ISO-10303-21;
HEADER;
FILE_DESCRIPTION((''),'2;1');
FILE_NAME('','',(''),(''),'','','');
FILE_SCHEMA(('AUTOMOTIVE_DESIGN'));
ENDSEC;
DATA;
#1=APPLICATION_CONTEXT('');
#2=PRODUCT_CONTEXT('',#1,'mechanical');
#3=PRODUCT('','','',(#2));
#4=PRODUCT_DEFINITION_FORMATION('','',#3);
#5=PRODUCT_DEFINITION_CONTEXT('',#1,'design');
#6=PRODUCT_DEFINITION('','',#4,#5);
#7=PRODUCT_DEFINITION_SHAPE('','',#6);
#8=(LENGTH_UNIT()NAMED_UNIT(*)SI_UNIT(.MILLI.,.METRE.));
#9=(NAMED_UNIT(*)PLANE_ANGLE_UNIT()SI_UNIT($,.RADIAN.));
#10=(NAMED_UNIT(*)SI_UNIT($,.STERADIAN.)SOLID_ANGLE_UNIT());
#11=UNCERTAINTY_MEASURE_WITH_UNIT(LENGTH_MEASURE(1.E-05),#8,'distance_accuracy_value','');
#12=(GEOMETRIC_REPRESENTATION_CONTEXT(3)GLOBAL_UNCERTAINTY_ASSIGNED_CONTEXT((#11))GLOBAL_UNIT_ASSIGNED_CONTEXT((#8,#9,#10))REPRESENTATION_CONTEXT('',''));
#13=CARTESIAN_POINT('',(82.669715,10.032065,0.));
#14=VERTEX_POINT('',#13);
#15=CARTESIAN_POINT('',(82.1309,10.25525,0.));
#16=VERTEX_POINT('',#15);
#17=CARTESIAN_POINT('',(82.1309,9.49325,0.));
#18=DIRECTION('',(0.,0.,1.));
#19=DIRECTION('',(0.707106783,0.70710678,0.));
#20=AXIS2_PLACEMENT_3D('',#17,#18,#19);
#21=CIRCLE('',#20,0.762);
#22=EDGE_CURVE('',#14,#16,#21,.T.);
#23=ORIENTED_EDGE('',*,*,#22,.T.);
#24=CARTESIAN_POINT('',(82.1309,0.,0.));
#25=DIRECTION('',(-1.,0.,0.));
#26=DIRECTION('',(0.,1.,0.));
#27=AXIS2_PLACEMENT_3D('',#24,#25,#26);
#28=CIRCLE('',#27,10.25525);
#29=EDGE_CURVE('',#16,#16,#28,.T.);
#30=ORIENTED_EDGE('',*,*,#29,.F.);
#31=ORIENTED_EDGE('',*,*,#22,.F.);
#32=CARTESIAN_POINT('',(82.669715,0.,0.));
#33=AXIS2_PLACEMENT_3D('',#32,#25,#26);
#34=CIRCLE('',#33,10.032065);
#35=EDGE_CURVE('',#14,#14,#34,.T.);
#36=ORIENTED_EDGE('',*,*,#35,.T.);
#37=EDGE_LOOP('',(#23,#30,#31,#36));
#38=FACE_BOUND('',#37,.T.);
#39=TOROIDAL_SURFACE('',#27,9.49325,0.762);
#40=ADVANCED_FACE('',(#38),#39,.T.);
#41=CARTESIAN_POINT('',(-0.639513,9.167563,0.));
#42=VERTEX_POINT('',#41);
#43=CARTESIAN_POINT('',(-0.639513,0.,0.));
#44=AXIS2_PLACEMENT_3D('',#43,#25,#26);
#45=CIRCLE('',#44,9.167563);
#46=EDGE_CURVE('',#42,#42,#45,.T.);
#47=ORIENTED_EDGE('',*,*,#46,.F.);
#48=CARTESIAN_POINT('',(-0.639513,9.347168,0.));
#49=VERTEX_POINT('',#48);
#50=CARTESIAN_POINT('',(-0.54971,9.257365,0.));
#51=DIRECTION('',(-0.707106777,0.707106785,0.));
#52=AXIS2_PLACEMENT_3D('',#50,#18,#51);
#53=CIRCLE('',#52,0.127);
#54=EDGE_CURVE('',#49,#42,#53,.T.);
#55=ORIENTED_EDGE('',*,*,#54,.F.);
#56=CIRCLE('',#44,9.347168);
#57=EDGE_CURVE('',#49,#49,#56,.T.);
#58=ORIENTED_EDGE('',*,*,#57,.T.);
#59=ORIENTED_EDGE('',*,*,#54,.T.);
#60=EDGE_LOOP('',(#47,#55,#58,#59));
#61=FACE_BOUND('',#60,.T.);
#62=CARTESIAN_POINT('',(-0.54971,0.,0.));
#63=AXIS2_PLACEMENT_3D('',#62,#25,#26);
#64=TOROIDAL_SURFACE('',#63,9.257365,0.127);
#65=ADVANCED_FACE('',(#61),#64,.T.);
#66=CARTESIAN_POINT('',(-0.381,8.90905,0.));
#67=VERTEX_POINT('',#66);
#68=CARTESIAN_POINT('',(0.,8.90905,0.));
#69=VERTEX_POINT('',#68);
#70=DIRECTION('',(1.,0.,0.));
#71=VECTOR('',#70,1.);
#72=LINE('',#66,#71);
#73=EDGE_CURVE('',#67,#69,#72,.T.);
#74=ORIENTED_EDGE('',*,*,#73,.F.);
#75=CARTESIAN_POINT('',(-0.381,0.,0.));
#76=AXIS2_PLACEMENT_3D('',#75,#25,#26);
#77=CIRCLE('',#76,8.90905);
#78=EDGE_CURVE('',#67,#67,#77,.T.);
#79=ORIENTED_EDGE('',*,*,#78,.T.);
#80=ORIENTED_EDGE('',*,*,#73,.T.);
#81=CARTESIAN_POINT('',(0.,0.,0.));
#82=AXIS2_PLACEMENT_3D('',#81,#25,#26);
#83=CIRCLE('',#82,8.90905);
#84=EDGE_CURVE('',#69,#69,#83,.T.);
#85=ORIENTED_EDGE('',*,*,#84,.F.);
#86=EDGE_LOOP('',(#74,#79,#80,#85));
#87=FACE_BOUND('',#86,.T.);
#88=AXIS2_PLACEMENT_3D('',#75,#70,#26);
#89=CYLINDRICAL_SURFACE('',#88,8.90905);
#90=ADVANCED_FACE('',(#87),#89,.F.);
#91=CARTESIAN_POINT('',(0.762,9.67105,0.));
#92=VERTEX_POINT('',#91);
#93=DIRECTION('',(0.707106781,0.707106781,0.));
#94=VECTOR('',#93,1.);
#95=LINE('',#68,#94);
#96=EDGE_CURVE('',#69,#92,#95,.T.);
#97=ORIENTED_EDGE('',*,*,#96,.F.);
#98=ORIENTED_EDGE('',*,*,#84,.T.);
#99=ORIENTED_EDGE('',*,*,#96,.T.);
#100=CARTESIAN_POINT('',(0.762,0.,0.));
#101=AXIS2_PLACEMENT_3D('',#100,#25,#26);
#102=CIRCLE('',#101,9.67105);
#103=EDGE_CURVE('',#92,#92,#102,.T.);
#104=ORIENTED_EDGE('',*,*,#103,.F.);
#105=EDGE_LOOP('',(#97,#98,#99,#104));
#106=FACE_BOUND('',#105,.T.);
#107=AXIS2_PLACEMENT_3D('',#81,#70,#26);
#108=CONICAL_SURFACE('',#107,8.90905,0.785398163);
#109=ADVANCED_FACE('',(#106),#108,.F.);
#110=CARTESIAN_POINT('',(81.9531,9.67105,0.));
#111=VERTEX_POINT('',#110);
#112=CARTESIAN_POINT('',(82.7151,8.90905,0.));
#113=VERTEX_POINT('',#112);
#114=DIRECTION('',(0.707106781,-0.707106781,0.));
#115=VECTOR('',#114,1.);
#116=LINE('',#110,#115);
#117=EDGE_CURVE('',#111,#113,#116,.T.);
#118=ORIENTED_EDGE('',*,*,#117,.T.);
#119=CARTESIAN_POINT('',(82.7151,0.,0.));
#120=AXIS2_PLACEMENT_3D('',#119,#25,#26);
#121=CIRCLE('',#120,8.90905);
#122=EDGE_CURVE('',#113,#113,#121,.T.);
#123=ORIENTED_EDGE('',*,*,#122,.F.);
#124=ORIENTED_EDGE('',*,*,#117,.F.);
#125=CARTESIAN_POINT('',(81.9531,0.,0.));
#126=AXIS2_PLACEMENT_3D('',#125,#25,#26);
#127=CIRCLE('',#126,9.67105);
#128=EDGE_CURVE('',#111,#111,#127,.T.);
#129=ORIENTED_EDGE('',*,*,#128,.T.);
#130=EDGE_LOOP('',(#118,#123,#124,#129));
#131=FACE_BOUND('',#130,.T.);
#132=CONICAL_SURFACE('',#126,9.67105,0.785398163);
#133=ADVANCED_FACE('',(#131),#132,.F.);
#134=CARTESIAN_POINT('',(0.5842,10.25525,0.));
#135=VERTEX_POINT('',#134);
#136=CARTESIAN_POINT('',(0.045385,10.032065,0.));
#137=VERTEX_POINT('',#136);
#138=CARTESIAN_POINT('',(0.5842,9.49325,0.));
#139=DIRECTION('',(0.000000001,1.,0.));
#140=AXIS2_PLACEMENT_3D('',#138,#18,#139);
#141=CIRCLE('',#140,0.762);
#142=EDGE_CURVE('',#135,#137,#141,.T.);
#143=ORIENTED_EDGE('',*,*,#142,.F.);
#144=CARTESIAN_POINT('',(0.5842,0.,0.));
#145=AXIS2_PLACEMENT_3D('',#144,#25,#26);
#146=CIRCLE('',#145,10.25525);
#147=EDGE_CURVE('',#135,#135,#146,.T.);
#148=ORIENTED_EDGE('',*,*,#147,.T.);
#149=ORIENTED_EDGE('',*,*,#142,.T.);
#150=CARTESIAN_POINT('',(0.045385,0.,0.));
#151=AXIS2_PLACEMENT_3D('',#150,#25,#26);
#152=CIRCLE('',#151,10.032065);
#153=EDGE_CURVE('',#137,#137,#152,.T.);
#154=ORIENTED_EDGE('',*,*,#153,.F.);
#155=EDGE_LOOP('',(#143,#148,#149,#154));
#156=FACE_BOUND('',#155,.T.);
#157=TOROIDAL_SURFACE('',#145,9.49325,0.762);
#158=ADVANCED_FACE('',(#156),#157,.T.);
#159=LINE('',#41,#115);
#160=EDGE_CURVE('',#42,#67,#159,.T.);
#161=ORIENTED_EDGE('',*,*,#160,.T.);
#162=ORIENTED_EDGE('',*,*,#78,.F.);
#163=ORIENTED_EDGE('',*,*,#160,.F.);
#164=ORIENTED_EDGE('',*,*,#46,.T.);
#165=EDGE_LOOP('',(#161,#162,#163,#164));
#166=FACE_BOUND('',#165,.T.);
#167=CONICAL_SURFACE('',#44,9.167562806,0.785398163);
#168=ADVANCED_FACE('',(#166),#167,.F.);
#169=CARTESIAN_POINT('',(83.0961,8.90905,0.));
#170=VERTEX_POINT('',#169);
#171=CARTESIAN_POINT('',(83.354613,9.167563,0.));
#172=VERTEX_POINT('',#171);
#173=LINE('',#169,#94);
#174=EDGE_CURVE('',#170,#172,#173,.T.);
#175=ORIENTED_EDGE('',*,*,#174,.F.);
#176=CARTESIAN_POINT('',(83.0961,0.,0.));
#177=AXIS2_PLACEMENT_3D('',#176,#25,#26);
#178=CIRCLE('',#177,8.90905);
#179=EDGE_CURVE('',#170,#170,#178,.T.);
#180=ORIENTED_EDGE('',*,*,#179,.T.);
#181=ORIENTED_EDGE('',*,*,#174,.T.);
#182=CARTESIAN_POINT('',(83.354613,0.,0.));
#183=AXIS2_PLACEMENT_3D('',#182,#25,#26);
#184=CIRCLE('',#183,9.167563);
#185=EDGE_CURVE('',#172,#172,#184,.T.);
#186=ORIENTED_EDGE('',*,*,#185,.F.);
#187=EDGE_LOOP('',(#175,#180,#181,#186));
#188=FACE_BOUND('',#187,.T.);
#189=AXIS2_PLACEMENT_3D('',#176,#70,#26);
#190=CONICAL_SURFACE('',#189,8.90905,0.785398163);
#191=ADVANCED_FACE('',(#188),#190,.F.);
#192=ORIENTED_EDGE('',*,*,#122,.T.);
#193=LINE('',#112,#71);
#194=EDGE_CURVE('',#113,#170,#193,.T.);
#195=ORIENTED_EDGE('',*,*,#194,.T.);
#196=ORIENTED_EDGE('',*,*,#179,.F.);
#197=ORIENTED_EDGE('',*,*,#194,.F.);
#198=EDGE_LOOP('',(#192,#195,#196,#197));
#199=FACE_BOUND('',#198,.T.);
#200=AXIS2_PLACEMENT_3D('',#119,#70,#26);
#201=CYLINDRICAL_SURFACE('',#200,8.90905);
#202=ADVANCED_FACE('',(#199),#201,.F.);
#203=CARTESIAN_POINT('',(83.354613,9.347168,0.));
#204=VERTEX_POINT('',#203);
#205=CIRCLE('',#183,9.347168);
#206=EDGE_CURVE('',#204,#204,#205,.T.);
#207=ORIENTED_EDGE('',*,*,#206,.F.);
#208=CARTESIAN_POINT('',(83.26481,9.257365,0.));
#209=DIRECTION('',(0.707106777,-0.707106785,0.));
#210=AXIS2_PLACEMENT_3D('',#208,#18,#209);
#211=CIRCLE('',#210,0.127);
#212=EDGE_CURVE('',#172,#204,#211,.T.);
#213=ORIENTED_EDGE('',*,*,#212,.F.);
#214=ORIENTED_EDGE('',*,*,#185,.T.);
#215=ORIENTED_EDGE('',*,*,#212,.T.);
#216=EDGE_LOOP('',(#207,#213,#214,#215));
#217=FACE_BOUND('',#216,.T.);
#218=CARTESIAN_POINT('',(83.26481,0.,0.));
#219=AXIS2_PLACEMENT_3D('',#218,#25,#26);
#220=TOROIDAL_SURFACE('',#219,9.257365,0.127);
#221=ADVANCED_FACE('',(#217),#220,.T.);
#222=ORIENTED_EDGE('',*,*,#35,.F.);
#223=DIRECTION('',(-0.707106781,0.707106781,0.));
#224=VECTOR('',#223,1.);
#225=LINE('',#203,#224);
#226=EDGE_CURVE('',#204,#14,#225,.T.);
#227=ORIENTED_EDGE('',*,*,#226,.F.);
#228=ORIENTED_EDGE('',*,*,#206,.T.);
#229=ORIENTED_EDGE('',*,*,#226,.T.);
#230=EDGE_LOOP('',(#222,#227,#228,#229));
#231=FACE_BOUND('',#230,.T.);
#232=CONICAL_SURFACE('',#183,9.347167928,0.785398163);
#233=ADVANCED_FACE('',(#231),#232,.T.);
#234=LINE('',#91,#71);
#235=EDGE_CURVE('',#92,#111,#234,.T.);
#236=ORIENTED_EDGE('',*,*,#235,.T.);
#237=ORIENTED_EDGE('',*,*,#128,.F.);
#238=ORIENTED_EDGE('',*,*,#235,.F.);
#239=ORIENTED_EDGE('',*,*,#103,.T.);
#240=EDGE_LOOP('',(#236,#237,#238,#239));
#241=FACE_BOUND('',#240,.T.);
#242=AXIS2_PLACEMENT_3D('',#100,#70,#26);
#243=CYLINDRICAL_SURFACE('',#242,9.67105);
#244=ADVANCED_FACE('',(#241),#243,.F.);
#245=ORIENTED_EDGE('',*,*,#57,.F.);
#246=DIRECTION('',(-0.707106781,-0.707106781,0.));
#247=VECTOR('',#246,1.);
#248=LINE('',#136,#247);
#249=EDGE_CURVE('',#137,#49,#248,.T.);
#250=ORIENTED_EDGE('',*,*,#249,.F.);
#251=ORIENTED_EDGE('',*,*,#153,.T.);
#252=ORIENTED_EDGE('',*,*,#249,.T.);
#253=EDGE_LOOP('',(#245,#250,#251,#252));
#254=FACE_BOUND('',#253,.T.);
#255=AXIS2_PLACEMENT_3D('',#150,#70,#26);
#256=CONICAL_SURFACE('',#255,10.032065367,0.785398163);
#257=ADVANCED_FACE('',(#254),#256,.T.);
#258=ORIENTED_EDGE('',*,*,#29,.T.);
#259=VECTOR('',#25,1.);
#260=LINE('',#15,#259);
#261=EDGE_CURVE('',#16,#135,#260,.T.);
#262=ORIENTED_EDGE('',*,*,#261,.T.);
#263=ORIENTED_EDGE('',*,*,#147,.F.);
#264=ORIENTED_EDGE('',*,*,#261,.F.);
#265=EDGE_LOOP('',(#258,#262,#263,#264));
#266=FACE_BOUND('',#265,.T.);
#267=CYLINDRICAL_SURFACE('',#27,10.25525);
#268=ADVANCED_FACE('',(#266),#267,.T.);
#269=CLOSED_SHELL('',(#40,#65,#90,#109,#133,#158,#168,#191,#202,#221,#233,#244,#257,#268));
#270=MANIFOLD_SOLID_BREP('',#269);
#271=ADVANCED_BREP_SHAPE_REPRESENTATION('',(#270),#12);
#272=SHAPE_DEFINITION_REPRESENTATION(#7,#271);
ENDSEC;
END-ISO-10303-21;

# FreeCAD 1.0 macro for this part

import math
import FreeCAD as App
import Part
import Sketcher
from FreeCAD import Vector
Q = App.Units.Quantity

doc = App.newDocument("Part")
body = doc.addObject("PartDesign::Body", "Body")

sketch1 = doc.addObject("Sketcher::SketchObject", "Sketch")
body.addObject(sketch1)
sketch1.AttachmentSupport = (doc.XY_Plane, [""])
sketch1.MapMode = "FlatFace"
sketch1.addGeometry([
    Part.LineSegment(Vector(-0.64, 9.17, 0), Vector(-0.38, 8.91, 0)),
    Part.LineSegment(Vector(-0.38, 8.91, 0), Vector(0, 8.91, 0)),
    Part.LineSegment(Vector(0, 8.91, 0), Vector(0.76, 9.67, 0)),
    Part.LineSegment(Vector(0.76, 9.67, 0), Vector(81.95, 9.67, 0)),
    Part.LineSegment(Vector(81.95, 9.67, 0), Vector(82.72, 8.91, 0)),
    Part.LineSegment(Vector(82.72, 8.91, 0), Vector(83.1, 8.91, 0)),
    Part.LineSegment(Vector(83.1, 8.91, 0), Vector(83.35, 9.17, 0)),
    Part.ArcOfCircle(Part.Circle(Vector(83.26, 9.26, 0), Vector(0, 0, 1), 0.13), math.radians(-45), math.radians(45)),
    Part.LineSegment(Vector(83.35, 9.35, 0), Vector(82.67, 10.03, 0)),
    Part.ArcOfCircle(Part.Circle(Vector(82.13, 9.49, 0), Vector(0, 0, 1), 0.76), math.radians(45), math.radians(90)),
    Part.LineSegment(Vector(82.13, 10.26, 0), Vector(0.58, 10.26, 0)),
    Part.ArcOfCircle(Part.Circle(Vector(0.58, 9.49, 0), Vector(0, 0, 1), 0.76), math.radians(90), math.radians(135)),
    Part.LineSegment(Vector(0.05, 10.03, 0), Vector(-0.64, 9.35, 0)),
    Part.ArcOfCircle(Part.Circle(Vector(-0.55, 9.26, 0), Vector(0, 0, 1), 0.13), math.radians(135), math.radians(225)),
], False)
sketch1.addConstraint([
    Sketcher.Constraint("Coincident", 0, 2, 1, 1),
    Sketcher.Constraint("Coincident", 1, 2, 2, 1),
    Sketcher.Constraint("Coincident", 2, 2, 3, 1),
    Sketcher.Constraint("Coincident", 3, 2, 4, 1),
    Sketcher.Constraint("Coincident", 4, 2, 5, 1),
    Sketcher.Constraint("Coincident", 5, 2, 6, 1),
    Sketcher.Constraint("Tangent", 6, 2, 7, 1),
    Sketcher.Constraint("Tangent", 7, 2, 8, 1),
    Sketcher.Constraint("Tangent", 8, 2, 9, 1),
    Sketcher.Constraint("Tangent", 9, 2, 10, 1),
    Sketcher.Constraint("Tangent", 10, 2, 11, 1),
    Sketcher.Constraint("Tangent", 11, 2, 12, 1),
    Sketcher.Constraint("Tangent", 12, 2, 13, 1),
    Sketcher.Constraint("Tangent", 13, 2, 0, 1),
    Sketcher.Constraint("Horizontal", 1),
    Sketcher.Constraint("Horizontal", 3),
    Sketcher.Constraint("Horizontal", 5),
    Sketcher.Constraint("Horizontal", 10),
    Sketcher.Constraint("Equal", 9, 11),
    Sketcher.Constraint("Equal", 7, 13),
    Sketcher.Constraint("PointOnObject", 1, 2, -2),
    Sketcher.Constraint("Perpendicular", 0, 2),
    Sketcher.Constraint("Perpendicular", 2, 4),
    Sketcher.Constraint("Perpendicular", 4, 6),
    Sketcher.Constraint("Perpendicular", 6, 8),
    Sketcher.Constraint("Perpendicular", 8, 12),
    Sketcher.Constraint("Horizontal", 7, 3, 13, 3),
    Sketcher.Constraint("Horizontal", 1, 2, 4, 2),
    Sketcher.Constraint("Horizontal", 8, 2, 11, 2),
    Sketcher.Constraint("Equal", 1, 5),
    Sketcher.Constraint("Radius", 9, Q("0.03 in")),
    Sketcher.Constraint("Radius", 7, Q("0.005 in")),
    Sketcher.Constraint("DistanceX", 1, 1, 1, 2, Q("0.015 in")),
    Sketcher.Constraint("DistanceX", -1, 1, 2, 2, Q("0.03 in")),
    Sketcher.Constraint("DistanceX", 3, 1, 3, 2, Q("3.1965 in")),
    Sketcher.Constraint("DistanceX", 10, 2, 10, 1, Q("3.2105 in")),
    Sketcher.Constraint("DistanceY", 0, 2, 11, 3, Q("0.023 in")),
    Sketcher.Constraint("DistanceY", -1, 1, 9, 3, 9.49325),
])
revolution = doc.addObject("PartDesign::Revolution", "Revolution")
body.addObject(revolution)
revolution.Profile = sketch1
revolution.ReferenceAxis = (sketch1, ["H_Axis"])
revolution.Angle = 360

doc.recompute()
